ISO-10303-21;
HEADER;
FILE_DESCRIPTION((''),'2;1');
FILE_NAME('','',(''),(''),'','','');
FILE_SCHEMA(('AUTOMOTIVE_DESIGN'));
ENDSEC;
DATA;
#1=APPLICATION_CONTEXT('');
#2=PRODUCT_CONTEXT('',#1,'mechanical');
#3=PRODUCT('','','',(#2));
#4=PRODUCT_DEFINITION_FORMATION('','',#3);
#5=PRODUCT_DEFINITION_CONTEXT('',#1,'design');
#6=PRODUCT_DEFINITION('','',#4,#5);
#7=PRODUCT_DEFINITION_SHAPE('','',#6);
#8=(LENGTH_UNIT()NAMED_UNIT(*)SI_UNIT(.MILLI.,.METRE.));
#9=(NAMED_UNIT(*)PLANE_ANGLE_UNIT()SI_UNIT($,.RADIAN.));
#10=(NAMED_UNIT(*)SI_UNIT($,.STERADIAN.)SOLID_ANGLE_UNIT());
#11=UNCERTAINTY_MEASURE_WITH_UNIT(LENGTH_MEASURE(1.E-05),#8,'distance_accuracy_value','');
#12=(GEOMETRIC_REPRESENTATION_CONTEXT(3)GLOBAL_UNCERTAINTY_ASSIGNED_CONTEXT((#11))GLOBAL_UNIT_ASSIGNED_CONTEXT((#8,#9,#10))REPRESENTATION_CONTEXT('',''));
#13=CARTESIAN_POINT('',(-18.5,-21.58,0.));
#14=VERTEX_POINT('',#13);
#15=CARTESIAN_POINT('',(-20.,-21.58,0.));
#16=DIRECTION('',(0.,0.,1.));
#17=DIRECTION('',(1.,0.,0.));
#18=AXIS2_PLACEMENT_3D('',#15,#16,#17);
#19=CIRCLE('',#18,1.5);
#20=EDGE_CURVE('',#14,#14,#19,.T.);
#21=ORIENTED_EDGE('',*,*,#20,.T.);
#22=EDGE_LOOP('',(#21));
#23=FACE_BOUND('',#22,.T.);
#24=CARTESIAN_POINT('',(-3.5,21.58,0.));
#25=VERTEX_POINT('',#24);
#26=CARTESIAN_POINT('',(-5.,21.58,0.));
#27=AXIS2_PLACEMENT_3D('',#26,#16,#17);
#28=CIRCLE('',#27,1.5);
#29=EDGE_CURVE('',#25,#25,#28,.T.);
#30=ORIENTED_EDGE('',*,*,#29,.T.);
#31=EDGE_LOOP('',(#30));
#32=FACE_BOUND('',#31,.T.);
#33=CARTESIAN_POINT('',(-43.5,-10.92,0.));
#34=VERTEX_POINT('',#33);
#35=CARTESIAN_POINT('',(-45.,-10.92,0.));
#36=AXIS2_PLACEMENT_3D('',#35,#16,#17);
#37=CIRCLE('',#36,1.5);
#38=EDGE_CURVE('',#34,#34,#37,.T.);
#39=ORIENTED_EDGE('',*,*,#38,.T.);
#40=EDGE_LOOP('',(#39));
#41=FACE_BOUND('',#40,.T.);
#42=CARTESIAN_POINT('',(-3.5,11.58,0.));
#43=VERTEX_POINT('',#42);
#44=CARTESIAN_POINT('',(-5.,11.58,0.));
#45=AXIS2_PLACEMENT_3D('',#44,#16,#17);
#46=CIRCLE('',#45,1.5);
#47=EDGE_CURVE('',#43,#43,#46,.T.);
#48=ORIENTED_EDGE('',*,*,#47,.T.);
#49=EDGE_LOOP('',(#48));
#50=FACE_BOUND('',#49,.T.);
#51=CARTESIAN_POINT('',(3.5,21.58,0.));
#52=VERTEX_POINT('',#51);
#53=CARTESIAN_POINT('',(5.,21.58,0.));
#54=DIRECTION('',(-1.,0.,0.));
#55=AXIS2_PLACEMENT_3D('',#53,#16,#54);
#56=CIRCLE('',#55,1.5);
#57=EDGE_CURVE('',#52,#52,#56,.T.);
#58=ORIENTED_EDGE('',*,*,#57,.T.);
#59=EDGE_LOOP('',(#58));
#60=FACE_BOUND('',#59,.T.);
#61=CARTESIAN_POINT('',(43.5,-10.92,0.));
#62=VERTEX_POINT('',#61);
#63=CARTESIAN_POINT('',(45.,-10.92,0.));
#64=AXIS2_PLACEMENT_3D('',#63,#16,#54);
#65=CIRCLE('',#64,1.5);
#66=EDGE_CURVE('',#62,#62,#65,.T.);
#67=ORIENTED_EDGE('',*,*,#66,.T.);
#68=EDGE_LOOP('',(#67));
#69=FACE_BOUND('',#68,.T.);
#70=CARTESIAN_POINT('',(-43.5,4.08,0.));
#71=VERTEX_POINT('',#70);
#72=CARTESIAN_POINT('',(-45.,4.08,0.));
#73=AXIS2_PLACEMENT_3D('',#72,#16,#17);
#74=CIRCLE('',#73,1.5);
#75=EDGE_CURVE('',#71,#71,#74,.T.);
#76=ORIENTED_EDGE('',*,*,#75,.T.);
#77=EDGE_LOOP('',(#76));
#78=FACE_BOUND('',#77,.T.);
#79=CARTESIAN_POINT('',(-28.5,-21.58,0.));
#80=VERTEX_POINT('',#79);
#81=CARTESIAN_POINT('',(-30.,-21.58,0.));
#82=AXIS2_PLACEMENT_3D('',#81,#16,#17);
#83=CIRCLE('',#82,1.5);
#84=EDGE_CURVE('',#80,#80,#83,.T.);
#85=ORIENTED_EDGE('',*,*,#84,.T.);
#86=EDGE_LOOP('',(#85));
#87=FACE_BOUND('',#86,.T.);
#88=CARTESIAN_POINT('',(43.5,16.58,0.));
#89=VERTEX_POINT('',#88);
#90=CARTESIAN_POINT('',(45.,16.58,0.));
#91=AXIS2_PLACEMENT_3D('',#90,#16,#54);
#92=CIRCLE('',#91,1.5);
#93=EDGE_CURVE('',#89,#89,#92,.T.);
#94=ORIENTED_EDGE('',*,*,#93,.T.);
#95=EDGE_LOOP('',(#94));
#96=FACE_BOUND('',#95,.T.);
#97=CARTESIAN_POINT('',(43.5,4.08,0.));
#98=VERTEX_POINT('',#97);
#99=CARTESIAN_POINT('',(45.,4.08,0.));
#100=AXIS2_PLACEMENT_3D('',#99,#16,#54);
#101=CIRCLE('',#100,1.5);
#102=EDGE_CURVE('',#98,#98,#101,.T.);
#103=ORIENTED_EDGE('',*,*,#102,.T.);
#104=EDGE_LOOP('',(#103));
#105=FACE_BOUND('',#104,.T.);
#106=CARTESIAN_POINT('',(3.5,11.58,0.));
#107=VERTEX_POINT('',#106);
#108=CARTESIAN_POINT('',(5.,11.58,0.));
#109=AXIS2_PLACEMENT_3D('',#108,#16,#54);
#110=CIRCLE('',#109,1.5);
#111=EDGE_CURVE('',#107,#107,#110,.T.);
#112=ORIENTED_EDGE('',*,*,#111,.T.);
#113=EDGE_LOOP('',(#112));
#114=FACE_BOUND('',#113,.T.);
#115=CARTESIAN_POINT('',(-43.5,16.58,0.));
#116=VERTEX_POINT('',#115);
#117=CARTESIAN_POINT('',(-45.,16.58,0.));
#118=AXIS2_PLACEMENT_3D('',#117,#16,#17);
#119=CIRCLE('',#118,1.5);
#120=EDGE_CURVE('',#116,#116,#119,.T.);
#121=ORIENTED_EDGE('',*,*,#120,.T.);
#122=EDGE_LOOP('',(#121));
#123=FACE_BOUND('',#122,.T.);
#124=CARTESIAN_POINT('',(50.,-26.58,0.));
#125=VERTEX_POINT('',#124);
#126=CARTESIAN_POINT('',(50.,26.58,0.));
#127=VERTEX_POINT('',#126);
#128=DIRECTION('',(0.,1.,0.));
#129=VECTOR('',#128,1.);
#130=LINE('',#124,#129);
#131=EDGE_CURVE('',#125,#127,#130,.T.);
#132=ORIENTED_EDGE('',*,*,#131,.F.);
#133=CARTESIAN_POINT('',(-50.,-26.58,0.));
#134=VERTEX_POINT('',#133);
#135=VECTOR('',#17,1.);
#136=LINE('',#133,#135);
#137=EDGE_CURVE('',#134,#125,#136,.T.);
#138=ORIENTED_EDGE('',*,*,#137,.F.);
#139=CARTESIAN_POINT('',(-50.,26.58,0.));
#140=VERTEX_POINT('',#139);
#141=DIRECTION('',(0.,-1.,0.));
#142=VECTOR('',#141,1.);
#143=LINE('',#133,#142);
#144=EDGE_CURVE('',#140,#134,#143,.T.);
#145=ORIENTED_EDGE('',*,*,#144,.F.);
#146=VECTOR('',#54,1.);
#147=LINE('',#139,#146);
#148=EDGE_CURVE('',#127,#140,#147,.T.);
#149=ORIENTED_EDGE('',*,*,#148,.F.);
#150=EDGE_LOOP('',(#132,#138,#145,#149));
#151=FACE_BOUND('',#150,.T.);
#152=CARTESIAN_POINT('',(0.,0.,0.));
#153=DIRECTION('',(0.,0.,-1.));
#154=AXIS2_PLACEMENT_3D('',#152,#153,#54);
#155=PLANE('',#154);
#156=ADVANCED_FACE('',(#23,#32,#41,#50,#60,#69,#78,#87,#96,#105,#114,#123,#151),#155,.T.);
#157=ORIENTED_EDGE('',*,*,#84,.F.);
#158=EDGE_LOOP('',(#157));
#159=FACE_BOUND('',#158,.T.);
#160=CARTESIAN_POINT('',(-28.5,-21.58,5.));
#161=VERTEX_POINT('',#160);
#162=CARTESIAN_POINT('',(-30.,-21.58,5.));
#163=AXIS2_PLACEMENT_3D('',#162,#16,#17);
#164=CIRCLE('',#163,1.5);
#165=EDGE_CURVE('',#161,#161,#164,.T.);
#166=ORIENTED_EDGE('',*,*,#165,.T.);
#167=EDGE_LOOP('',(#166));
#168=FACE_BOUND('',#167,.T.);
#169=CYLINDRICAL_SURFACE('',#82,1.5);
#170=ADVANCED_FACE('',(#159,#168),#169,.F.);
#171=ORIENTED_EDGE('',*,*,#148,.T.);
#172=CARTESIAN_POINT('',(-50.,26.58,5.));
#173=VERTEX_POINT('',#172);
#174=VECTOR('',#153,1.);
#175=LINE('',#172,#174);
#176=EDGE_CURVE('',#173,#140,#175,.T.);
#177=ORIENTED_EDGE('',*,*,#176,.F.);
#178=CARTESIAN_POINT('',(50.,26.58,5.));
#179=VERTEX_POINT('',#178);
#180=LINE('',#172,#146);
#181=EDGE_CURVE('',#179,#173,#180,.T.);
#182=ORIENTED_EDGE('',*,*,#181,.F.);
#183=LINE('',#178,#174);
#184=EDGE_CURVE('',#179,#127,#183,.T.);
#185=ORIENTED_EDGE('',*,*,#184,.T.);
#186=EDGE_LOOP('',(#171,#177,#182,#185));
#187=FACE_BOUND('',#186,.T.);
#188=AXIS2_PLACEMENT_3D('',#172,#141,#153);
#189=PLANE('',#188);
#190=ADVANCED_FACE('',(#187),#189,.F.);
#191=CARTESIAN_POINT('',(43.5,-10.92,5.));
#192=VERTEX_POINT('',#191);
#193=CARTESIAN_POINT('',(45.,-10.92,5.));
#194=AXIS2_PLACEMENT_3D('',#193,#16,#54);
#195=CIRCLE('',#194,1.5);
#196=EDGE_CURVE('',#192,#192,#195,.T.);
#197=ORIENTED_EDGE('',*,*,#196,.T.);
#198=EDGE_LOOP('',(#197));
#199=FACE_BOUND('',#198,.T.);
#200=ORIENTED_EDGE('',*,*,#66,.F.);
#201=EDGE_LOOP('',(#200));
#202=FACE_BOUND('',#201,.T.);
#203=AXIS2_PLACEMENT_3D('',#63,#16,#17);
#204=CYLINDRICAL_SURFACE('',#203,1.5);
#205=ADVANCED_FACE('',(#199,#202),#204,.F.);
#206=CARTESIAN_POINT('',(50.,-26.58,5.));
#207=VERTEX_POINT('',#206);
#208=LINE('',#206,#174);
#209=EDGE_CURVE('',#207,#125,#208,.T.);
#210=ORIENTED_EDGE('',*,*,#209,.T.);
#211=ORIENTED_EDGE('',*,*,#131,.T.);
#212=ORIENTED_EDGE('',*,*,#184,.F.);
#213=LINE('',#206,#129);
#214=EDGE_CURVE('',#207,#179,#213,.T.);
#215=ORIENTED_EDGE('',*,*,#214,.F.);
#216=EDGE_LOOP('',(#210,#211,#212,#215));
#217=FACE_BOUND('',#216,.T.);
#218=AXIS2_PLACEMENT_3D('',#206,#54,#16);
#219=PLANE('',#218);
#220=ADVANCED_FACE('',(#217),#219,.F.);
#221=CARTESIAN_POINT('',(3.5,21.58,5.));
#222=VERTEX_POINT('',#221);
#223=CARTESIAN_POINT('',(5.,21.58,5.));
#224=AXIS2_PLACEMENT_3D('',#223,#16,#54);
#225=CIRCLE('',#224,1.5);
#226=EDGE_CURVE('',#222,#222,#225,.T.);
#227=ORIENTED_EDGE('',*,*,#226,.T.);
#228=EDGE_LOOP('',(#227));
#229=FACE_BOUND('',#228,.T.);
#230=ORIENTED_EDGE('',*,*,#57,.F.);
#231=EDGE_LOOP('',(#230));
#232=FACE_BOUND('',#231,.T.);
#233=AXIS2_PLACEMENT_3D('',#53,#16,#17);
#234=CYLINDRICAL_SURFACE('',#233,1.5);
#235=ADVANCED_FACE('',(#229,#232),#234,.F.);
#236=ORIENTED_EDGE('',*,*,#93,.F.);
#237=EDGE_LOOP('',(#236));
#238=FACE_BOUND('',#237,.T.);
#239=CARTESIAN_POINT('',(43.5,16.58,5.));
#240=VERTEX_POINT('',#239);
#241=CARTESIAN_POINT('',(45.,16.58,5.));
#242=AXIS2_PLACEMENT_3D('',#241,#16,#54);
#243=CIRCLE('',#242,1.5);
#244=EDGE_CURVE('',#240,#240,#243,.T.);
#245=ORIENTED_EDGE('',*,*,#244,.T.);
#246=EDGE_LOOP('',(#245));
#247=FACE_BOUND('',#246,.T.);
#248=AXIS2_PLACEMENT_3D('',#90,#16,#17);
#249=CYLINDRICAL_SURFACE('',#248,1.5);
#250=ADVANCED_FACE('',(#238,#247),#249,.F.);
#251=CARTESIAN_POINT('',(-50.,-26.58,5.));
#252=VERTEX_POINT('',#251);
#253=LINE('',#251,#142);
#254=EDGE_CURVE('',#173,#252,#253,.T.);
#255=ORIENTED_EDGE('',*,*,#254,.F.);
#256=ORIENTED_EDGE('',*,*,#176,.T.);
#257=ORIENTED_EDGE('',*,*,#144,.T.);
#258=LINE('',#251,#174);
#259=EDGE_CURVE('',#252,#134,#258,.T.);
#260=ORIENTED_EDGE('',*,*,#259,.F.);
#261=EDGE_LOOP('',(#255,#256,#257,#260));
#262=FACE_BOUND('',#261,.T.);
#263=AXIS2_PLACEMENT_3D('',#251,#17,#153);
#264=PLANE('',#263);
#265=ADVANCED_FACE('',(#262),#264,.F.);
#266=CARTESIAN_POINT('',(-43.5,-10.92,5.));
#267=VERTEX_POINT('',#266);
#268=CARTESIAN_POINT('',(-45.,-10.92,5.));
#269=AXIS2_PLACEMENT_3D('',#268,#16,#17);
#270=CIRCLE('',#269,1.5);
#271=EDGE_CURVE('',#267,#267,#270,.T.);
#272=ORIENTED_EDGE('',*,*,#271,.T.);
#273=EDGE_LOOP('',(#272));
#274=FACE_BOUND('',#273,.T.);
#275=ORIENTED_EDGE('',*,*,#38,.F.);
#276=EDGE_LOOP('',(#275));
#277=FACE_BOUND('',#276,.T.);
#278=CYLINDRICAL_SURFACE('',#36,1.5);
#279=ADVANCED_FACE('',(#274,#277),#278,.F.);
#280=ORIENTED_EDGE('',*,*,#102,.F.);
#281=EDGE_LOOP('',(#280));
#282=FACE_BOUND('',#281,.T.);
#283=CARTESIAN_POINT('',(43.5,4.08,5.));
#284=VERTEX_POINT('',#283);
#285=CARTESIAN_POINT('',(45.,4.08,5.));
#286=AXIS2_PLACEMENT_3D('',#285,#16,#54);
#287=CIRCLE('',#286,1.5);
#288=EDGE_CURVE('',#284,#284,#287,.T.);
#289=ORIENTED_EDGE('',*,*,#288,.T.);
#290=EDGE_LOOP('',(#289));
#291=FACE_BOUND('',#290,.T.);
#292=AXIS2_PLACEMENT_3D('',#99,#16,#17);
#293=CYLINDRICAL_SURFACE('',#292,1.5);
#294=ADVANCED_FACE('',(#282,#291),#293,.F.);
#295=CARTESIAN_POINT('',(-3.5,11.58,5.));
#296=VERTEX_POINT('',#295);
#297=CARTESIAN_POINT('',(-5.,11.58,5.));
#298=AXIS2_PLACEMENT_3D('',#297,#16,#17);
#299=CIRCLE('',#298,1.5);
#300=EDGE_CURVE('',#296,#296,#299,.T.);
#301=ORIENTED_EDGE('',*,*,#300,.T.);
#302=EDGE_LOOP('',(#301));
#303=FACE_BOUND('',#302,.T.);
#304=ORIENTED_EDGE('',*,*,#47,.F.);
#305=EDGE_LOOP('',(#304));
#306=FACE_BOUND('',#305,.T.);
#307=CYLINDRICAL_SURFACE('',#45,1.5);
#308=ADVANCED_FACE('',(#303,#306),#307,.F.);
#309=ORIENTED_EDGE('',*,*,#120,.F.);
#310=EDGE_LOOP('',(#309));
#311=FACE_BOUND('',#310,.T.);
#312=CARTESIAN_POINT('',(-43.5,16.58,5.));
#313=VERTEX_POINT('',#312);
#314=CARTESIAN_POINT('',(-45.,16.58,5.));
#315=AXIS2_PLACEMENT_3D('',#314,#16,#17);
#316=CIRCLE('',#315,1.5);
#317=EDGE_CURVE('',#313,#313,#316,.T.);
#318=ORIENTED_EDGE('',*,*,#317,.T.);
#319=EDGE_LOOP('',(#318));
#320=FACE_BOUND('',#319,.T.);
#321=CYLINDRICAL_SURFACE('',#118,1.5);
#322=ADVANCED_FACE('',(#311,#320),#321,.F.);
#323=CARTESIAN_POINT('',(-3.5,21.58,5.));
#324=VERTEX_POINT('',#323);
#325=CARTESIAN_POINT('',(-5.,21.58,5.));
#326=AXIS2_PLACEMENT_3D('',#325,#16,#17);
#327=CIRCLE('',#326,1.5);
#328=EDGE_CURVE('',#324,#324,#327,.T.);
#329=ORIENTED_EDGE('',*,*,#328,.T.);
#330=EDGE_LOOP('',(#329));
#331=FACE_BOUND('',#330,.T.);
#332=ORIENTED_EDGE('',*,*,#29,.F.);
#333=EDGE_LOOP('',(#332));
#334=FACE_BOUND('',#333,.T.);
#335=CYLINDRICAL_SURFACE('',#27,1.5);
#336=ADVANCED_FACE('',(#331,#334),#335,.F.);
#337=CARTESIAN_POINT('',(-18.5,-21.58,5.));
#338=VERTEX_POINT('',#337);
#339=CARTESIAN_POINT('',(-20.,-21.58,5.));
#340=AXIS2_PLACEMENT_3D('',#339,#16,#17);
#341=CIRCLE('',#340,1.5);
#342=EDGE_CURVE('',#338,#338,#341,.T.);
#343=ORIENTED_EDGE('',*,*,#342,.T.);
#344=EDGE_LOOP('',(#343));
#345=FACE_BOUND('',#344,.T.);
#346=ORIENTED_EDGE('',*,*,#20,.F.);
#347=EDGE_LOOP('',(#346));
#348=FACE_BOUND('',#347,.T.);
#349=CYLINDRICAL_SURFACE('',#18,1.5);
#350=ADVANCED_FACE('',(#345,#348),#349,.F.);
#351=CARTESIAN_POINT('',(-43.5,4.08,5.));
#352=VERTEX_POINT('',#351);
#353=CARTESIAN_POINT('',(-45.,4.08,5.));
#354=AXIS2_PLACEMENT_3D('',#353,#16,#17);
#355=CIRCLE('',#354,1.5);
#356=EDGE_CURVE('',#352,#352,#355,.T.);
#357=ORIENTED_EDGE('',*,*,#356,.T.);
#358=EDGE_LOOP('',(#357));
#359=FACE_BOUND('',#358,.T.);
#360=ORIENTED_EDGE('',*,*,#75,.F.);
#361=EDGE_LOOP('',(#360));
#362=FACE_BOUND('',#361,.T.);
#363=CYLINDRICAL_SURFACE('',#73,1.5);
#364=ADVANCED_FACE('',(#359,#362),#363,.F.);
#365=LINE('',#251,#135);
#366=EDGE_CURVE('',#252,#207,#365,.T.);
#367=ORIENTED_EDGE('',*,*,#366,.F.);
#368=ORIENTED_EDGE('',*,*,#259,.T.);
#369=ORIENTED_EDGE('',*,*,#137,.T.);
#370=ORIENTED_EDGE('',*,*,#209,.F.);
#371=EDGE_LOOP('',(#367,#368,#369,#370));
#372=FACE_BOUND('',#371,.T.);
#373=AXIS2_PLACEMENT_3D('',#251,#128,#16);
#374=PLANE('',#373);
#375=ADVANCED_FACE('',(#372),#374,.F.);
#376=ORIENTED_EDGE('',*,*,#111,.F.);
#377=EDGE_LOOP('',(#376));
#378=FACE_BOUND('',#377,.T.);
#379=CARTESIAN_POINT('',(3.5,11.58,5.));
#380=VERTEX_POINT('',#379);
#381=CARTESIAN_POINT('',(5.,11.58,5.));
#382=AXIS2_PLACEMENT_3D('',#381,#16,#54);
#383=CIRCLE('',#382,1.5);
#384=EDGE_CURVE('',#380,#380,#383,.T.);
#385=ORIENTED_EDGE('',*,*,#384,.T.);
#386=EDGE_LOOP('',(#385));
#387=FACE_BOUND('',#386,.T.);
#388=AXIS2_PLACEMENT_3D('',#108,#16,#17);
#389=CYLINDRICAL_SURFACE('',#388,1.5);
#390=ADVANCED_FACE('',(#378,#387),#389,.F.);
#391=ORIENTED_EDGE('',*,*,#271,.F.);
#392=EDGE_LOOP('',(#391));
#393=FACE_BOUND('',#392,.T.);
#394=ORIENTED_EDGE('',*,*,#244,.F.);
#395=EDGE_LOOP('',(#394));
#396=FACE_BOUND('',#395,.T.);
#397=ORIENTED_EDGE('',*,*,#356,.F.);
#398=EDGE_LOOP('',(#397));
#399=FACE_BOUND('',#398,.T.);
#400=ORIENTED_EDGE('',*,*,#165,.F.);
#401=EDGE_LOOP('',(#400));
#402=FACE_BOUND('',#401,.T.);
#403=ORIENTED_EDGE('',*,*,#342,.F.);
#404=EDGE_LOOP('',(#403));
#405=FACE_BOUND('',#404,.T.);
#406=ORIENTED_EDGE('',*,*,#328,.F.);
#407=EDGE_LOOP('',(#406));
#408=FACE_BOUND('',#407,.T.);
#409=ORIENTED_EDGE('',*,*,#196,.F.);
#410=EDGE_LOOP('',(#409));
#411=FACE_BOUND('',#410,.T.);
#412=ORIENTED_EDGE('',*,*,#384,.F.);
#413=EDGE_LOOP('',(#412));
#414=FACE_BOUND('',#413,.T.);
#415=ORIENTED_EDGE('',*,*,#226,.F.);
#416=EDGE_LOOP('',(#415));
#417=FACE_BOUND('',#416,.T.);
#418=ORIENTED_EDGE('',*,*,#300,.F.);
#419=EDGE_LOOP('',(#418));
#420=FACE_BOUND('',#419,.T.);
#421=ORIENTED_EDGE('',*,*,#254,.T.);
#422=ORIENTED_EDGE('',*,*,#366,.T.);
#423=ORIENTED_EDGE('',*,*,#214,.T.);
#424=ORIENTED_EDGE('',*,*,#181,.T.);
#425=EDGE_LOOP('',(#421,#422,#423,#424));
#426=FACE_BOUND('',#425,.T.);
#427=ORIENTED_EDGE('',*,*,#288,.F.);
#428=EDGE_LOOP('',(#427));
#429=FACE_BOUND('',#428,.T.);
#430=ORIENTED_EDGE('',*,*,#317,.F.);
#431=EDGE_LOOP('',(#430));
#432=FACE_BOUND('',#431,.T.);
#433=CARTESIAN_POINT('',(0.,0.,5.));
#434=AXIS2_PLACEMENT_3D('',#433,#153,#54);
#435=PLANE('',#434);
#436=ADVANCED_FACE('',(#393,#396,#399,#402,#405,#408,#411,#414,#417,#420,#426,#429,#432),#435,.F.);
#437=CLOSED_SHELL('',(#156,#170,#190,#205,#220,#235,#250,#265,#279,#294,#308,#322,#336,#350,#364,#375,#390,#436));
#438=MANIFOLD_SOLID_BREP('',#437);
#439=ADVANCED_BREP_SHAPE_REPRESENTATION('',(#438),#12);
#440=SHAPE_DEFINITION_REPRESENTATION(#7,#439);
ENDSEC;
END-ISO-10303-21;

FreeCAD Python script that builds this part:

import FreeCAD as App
import Part
import Sketcher
from FreeCAD import Vector
Q = App.Units.Quantity


def add_polygon(sketch, points):
    """Adds a closed chain of lines whose ends are joined by coincident constraints."""
    first, n = sketch.GeometryCount, len(points)
    for a, b in zip(points, points[1:] + points[:1]):
        sketch.addGeometry(Part.LineSegment(App.Vector(*a, 0), App.Vector(*b, 0)), False)
    for i in range(n):
        sketch.addConstraint(Sketcher.Constraint("Coincident", first + i, 2, first + (i + 1) % n, 1))

doc = App.newDocument("Part")
body = doc.addObject("PartDesign::Body", "Body")

# Sketch on XY plane
sketch1 = body.newObject("Sketcher::SketchObject", "Sketch")
sketch1.AttachmentSupport = (doc.getObject("XY_Plane"), [""])
sketch1.MapMode = "FlatFace"
add_polygon(sketch1, [(-50, 27), (-50, -27), (50, -27), (50, 27)])  # lines 0-3
sketch1.addConstraint([
    Sketcher.Constraint("Vertical", 0),
    Sketcher.Constraint("Horizontal", 1),
    Sketcher.Constraint("Vertical", 2),
    Sketcher.Constraint("Horizontal", 3),
    Sketcher.Constraint("Symmetric", 0, 2, 2, 2, -1, 1),
    Sketcher.Constraint("DistanceX", 1, 1, 1, 2, Q("100 mm")),
    Sketcher.Constraint("DistanceY", 0, 2, 0, 1, Q("53.16 mm")),
])
pad1 = body.newObject("PartDesign::Pad", "Pad")
pad1.Profile = sketch1
pad1.Length = 5

# Sketch on XY plane
sketch2 = body.newObject("Sketcher::SketchObject", "Sketch001")
sketch2.AttachmentSupport = (doc.getObject("XY_Plane"), [""])
sketch2.MapMode = "FlatFace"
sketch2.AttachmentOffset = App.Placement(Vector(0, 0, 5), App.Rotation())
sketch2.addGeometry([
    Part.Circle(Vector(-45, 16.6, 0), Vector(0, 0, 1), 1.5),  # 0
    Part.Circle(Vector(-45, 4.1, 0), Vector(0, 0, 1), 1.5),  # 1
    Part.Circle(Vector(-45, -10.9, 0), Vector(0, 0, 1), 1.5),  # 2
    Part.Circle(Vector(45, -10.9, 0), Vector(0, 0, 1), 1.5),  # 3
    Part.Circle(Vector(45, 4.1, 0), Vector(0, 0, 1), 1.5),  # 4
    Part.Circle(Vector(45, 16.6, 0), Vector(0, 0, 1), 1.5),  # 5
    Part.Circle(Vector(-5, 11.6, 0), Vector(0, 0, 1), 1.5),  # 6
    Part.Circle(Vector(-5, 21.6, 0), Vector(0, 0, 1), 1.5),  # 7
    Part.Circle(Vector(5, 11.6, 0), Vector(0, 0, 1), 1.5),  # 8
    Part.Circle(Vector(5, 21.6, 0), Vector(0, 0, 1), 1.5),  # 9
    Part.Circle(Vector(-30, -21.6, 0), Vector(0, 0, 1), 1.5),  # 10
    Part.Circle(Vector(-20, -21.6, 0), Vector(0, 0, 1), 1.5),  # 11
], False)
sketch2.addConstraint([
    Sketcher.Constraint("Equal", 0, 1),
    Sketcher.Constraint("Equal", 1, 2),
    Sketcher.Constraint("Equal", 2, 3),
    Sketcher.Constraint("Equal", 3, 4),
    Sketcher.Constraint("Equal", 4, 5),
    Sketcher.Constraint("Equal", 5, 6),
    Sketcher.Constraint("Equal", 6, 7),
    Sketcher.Constraint("Equal", 7, 8),
    Sketcher.Constraint("Equal", 8, 9),
    Sketcher.Constraint("Equal", 9, 10),
    Sketcher.Constraint("Equal", 10, 11),
    Sketcher.Constraint("Symmetric", 2, 3, 3, 3, -2),
    Sketcher.Constraint("Symmetric", 1, 3, 4, 3, -2),
    Sketcher.Constraint("Symmetric", 0, 3, 5, 3, -2),
    Sketcher.Constraint("Symmetric", 6, 3, 8, 3, -2),
    Sketcher.Constraint("Symmetric", 7, 3, 9, 3, -2),
    Sketcher.Constraint("Horizontal", 10, 3, 11, 3),
    Sketcher.Constraint("Vertical", 0, 3, 1, 3),
    Sketcher.Constraint("Vertical", 1, 3, 2, 3),
    Sketcher.Constraint("Vertical", 6, 3, 7, 3),
    Sketcher.Constraint("Diameter", 0, Q("3 mm")),
    Sketcher.Constraint("DistanceX", 0, 3, -1, 1, Q("45 mm")),
    Sketcher.Constraint("DistanceX", 6, 3, -1, 1, Q("5 mm")),
    Sketcher.Constraint("DistanceX", 10, 3, -1, 1, Q("30 mm")),
    Sketcher.Constraint("DistanceX", 11, 3, -1, 1, Q("20 mm")),
    Sketcher.Constraint("DistanceY", 2, 3, 1, 3, Q("15 mm")),
    Sketcher.Constraint("DistanceY", 6, 3, 0, 3, Q("5 mm")),
    Sketcher.Constraint("DistanceY", 6, 3, 7, 3, Q("10 mm")),
    Sketcher.Constraint("DistanceY", 1, 3, 0, 3, Q("12.5 mm")),
    Sketcher.Constraint("DistanceY", -1, 1, 0, 3, Q("16.58 mm")),
    Sketcher.Constraint("DistanceY", 10, 3, -1, 1, Q("21.58 mm")),
])
pocket1 = body.newObject("PartDesign::Pocket", "Pocket")
pocket1.Profile = sketch2
pocket1.Type = "ThroughAll"

doc.recompute()
